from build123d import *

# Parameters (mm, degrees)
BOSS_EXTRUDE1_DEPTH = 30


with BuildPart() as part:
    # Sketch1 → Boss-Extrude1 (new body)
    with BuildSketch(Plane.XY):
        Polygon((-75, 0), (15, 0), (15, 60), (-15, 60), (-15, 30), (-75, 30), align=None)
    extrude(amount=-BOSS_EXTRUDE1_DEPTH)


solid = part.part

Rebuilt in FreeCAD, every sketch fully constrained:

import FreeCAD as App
import Part
import Sketcher

doc = App.newDocument("Part")
body = doc.addObject("PartDesign::Body", "Body")

# Sketch on XY plane
sketch1 = body.newObject("Sketcher::SketchObject", "Sketch")
sketch1.AttachmentSupport = (doc.getObject("XY_Plane"), [""])
sketch1.MapMode = "FlatFace"
sketch1.addGeometry(Part.LineSegment(App.Vector(-75, 0, 0), App.Vector(15, 0, 0)), False)
sketch1.addGeometry(Part.LineSegment(App.Vector(15, 0, 0), App.Vector(15, 60, 0)), False)
sketch1.addGeometry(Part.LineSegment(App.Vector(15, 60, 0), App.Vector(-15, 60, 0)), False)
sketch1.addGeometry(Part.LineSegment(App.Vector(-15, 60, 0), App.Vector(-15, 30, 0)), False)
sketch1.addGeometry(Part.LineSegment(App.Vector(-15, 30, 0), App.Vector(-75, 30, 0)), False)
sketch1.addGeometry(Part.LineSegment(App.Vector(-75, 30, 0), App.Vector(-75, 0, 0)), False)
sketch1.addConstraint(Sketcher.Constraint("Coincident", 0, 2, 1, 1))
sketch1.addConstraint(Sketcher.Constraint("Coincident", 1, 2, 2, 1))
sketch1.addConstraint(Sketcher.Constraint("Coincident", 2, 2, 3, 1))
sketch1.addConstraint(Sketcher.Constraint("Coincident", 3, 2, 4, 1))
sketch1.addConstraint(Sketcher.Constraint("Coincident", 4, 2, 5, 1))
sketch1.addConstraint(Sketcher.Constraint("Coincident", 5, 2, 0, 1))
sketch1.addConstraint(Sketcher.Constraint("Horizontal", 0))
sketch1.addConstraint(Sketcher.Constraint("Vertical", 1))
sketch1.addConstraint(Sketcher.Constraint("Horizontal", 2))
sketch1.addConstraint(Sketcher.Constraint("Vertical", 3))
sketch1.addConstraint(Sketcher.Constraint("Horizontal", 4))
sketch1.addConstraint(Sketcher.Constraint("Vertical", 5))
sketch1.addConstraint(Sketcher.Constraint("PointOnObject", 0, 2, -1))
sketch1.addConstraint(Sketcher.Constraint("Equal", 4, 1))
sketch1.addConstraint(Sketcher.Constraint("Equal", 2, 3))
sketch1.addConstraint(Sketcher.Constraint("Equal", 3, 5))
sketch1.addConstraint(Sketcher.Constraint("DistanceX", 0, 1, 0, 2, 90.0))
sketch1.addConstraint(Sketcher.Constraint("DistanceX", -1, 1, 0, 2, 15.0))
pad1 = body.newObject("PartDesign::Pad", "Pad")
pad1.Profile = sketch1
pad1.Length = 30
pad1.Reversed = True

doc.recompute()
